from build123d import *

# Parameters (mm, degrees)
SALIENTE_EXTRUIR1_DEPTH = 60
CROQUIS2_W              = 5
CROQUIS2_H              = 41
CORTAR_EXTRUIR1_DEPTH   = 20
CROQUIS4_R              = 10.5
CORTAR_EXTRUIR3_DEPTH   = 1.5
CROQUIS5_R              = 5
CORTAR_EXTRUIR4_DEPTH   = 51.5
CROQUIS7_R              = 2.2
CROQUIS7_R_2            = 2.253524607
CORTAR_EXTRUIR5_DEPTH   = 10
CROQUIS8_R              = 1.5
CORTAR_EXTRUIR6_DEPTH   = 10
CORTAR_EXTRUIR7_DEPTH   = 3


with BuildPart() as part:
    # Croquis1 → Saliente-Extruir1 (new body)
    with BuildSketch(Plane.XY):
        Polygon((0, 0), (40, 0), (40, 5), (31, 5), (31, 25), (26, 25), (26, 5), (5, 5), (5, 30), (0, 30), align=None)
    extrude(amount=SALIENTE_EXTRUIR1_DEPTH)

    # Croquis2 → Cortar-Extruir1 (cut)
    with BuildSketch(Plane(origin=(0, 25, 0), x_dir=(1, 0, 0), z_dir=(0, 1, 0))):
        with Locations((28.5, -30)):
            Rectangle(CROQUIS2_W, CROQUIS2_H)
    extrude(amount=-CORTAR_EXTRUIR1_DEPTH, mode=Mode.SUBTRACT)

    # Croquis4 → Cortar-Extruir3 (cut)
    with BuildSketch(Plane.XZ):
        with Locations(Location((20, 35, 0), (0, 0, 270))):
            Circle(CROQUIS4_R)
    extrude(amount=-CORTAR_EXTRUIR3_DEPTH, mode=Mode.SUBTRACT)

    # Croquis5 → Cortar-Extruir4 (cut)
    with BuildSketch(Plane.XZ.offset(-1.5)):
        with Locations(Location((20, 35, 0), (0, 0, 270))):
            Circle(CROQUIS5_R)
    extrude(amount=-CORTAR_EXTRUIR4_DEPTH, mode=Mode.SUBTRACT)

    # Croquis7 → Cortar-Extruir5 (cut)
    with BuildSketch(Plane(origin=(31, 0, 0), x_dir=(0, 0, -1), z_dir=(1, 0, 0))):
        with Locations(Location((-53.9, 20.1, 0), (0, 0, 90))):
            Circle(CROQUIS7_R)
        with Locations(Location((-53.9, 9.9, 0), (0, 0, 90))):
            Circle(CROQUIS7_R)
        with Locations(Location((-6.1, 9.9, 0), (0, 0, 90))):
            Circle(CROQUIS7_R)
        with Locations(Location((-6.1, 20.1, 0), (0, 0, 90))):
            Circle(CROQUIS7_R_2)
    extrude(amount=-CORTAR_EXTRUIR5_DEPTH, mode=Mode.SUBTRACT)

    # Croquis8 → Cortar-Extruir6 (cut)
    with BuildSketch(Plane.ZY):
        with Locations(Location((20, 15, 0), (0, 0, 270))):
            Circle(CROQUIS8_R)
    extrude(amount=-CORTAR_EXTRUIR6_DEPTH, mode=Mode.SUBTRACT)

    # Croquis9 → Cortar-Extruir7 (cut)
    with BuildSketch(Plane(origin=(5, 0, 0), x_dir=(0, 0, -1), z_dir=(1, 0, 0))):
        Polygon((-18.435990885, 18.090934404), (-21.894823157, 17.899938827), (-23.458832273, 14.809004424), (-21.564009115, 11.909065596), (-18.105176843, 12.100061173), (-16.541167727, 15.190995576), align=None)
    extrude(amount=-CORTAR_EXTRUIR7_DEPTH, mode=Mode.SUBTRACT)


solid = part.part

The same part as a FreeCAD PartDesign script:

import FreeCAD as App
import Part
import Sketcher
from FreeCAD import Vector
Q = App.Units.Quantity

doc = App.newDocument("Part")
params = doc.addObject("Spreadsheet::Sheet", "Params")
for row, (alias, value) in enumerate([
    ("sketch1_width", "40 mm"),
    ("sketch1_width2", "9 mm"),
    ("sketch1_width3", "5 mm"),
    ("sketch1_height", "20 mm"),
    ("sketch1_height2", "25 mm"),
    ("pad1_length", "60 mm"),
    ("sketch2_width", "5 mm"),
    ("sketch2_height", "41 mm"),
    ("pocket1_length", "20 mm"),
    ("sketch3_diameter", "21 mm"),
    ("pocket2_length", "1.5 mm"),
    ("sketch4_diameter", "10 mm"),
    ("pocket3_length", "51.5 mm"),
    ("sketch5_diameter", "4.4 mm"),
    ("pocket4_length", "10 mm"),
    ("sketch6_diameter", "3 mm"),
    ("pocket5_length", "10 mm"),
    ("pocket6_length", "3 mm"),
], start=1):
    params.set(f"A{row}", alias)
    params.set(f"B{row}", "=" + value)
    params.setAlias(f"B{row}", alias)

body = doc.addObject("PartDesign::Body", "Body")

sketch1 = body.newObject("Sketcher::SketchObject", "Sketch")
sketch1.AttachmentSupport = (doc.getObject("XY_Plane"), [""])
sketch1.MapMode = "FlatFace"
sketch1.addGeometry([
    Part.LineSegment(Vector(0, 0, 0), Vector(40, 0, 0)),
    Part.LineSegment(Vector(40, 0, 0), Vector(40, 5, 0)),
    Part.LineSegment(Vector(40, 5, 0), Vector(31, 5, 0)),
    Part.LineSegment(Vector(31, 5, 0), Vector(31, 25, 0)),
    Part.LineSegment(Vector(31, 25, 0), Vector(26, 25, 0)),
    Part.LineSegment(Vector(26, 25, 0), Vector(26, 5, 0)),
    Part.LineSegment(Vector(26, 5, 0), Vector(5, 5, 0)),
    Part.LineSegment(Vector(5, 5, 0), Vector(5, 30, 0)),
    Part.LineSegment(Vector(5, 30, 0), Vector(0, 30, 0)),
    Part.LineSegment(Vector(0, 30, 0), Vector(0, 0, 0)),
], False)
sketch1.addConstraint([
    Sketcher.Constraint("Coincident", 0, 2, 1, 1),
    Sketcher.Constraint("Coincident", 1, 2, 2, 1),
    Sketcher.Constraint("Coincident", 2, 2, 3, 1),
    Sketcher.Constraint("Coincident", 3, 2, 4, 1),
    Sketcher.Constraint("Coincident", 4, 2, 5, 1),
    Sketcher.Constraint("Coincident", 5, 2, 6, 1),
    Sketcher.Constraint("Coincident", 6, 2, 7, 1),
    Sketcher.Constraint("Coincident", 7, 2, 8, 1),
    Sketcher.Constraint("Coincident", 8, 2, 9, 1),
    Sketcher.Constraint("Coincident", 9, 2, 0, 1),
    Sketcher.Constraint("Horizontal", 0),
    Sketcher.Constraint("Vertical", 1),
    Sketcher.Constraint("Horizontal", 2),
    Sketcher.Constraint("Vertical", 3),
    Sketcher.Constraint("Horizontal", 4),
    Sketcher.Constraint("Vertical", 5),
    Sketcher.Constraint("Horizontal", 6),
    Sketcher.Constraint("Vertical", 7),
    Sketcher.Constraint("Horizontal", 8),
    Sketcher.Constraint("Vertical", 9),
    Sketcher.Constraint("Coincident", 9, 2, -1, 1),
    Sketcher.Constraint("Horizontal", 2, 2, 5, 2),
    Sketcher.Constraint("Equal", 4, 8),
    Sketcher.Constraint("Equal", 8, 1),
    Sketcher.Constraint("DistanceX", 0, 1, 0, 2, Q("40 mm")),
    Sketcher.Constraint("DistanceX", 2, 2, 2, 1, Q("9 mm")),
    Sketcher.Constraint("DistanceX", 4, 2, 4, 1, Q("5 mm")),
    Sketcher.Constraint("DistanceY", 3, 1, 3, 2, Q("20 mm")),
    Sketcher.Constraint("DistanceY", 7, 1, 7, 2, Q("25 mm")),
])
sketch1.setExpression("Constraints[24]", "Params.sketch1_width")
sketch1.setExpression("Constraints[25]", "Params.sketch1_width2")
sketch1.setExpression("Constraints[26]", "Params.sketch1_width3")
sketch1.setExpression("Constraints[27]", "Params.sketch1_height")
sketch1.setExpression("Constraints[28]", "Params.sketch1_height2")
pad1 = body.newObject("PartDesign::Pad", "Pad")
pad1.Profile = sketch1
pad1.setExpression("Length", "Params.pad1_length")

sketch2 = body.newObject("Sketcher::SketchObject", "Sketch001")
sketch2.AttachmentSupport = (doc.getObject("XZ_Plane"), [""])
sketch2.MapMode = "FlatFace"
sketch2.AttachmentOffset = App.Placement(Vector(0, 0, -25), App.Rotation())
sketch2.addGeometry([
    Part.LineSegment(Vector(26, 10, 0), Vector(26, 50, 0)),
    Part.LineSegment(Vector(26, 50, 0), Vector(31, 50, 0)),
    Part.LineSegment(Vector(31, 50, 0), Vector(31, 10, 0)),
    Part.LineSegment(Vector(31, 10, 0), Vector(26, 10, 0)),
], False)
sketch2.addConstraint([
    Sketcher.Constraint("Coincident", 0, 2, 1, 1),
    Sketcher.Constraint("Coincident", 1, 2, 2, 1),
    Sketcher.Constraint("Coincident", 2, 2, 3, 1),
    Sketcher.Constraint("Coincident", 3, 2, 0, 1),
    Sketcher.Constraint("Vertical", 0),
    Sketcher.Constraint("Horizontal", 1),
    Sketcher.Constraint("Vertical", 2),
    Sketcher.Constraint("Horizontal", 3),
    Sketcher.Constraint("DistanceX", 1, 1, 1, 2, Q("5 mm")),
    Sketcher.Constraint("DistanceY", 0, 1, 0, 2, Q("41 mm")),
    Sketcher.Constraint("DistanceX", -1, 1, 0, 2, Q("26 mm")),
    Sketcher.Constraint("DistanceY", -1, 1, 0, 2, Q("50.5 mm")),
])
sketch2.setExpression("Constraints[8]", "Params.sketch2_width")
sketch2.setExpression("Constraints[9]", "Params.sketch2_height")
pocket1 = body.newObject("PartDesign::Pocket", "Pocket")
pocket1.Profile = sketch2
pocket1.setExpression("Length", "Params.pocket1_length")
pocket1.Reversed = True

sketch3 = body.newObject("Sketcher::SketchObject", "Sketch002")
sketch3.AttachmentSupport = (doc.getObject("XZ_Plane"), [""])
sketch3.MapMode = "FlatFace"
sketch3.addGeometry(Part.Circle(Vector(20, 35, 0), Vector(0, 0, 1), 10), False)
sketch3.addConstraint([
    Sketcher.Constraint("Diameter", 0, Q("21 mm")),
    Sketcher.Constraint("DistanceX", -1, 1, 0, 3, Q("20 mm")),
    Sketcher.Constraint("DistanceY", -1, 1, 0, 3, Q("35 mm")),
])
sketch3.setExpression("Constraints[0]", "Params.sketch3_diameter")
pocket2 = body.newObject("PartDesign::Pocket", "Pocket001")
pocket2.Profile = sketch3
pocket2.setExpression("Length", "Params.pocket2_length")

sketch4 = body.newObject("Sketcher::SketchObject", "Sketch003")
sketch4.AttachmentSupport = (doc.getObject("XZ_Plane"), [""])
sketch4.MapMode = "FlatFace"
sketch4.AttachmentOffset = App.Placement(Vector(0, 0, -1.5), App.Rotation())
sketch4.addGeometry(Part.Circle(Vector(20, 35, 0), Vector(0, 0, 1), 5), False)
sketch4.addConstraint([
    Sketcher.Constraint("Diameter", 0, Q("10 mm")),
    Sketcher.Constraint("DistanceX", -1, 1, 0, 3, Q("20 mm")),
    Sketcher.Constraint("DistanceY", -1, 1, 0, 3, Q("35 mm")),
])
sketch4.setExpression("Constraints[0]", "Params.sketch4_diameter")
pocket3 = body.newObject("PartDesign::Pocket", "Pocket002")
pocket3.Profile = sketch4
pocket3.setExpression("Length", "Params.pocket3_length")

sketch5 = body.newObject("Sketcher::SketchObject", "Sketch004")
sketch5.AttachmentSupport = (doc.getObject("YZ_Plane"), [""])
sketch5.MapMode = "FlatFace"
sketch5.AttachmentOffset = App.Placement(Vector(0, 0, 31), App.Rotation())
sketch5.addGeometry([
    Part.Circle(Vector(20.1, 53.9, 0), Vector(0, 0, 1), 2.2),
    Part.Circle(Vector(9.9, 53.9, 0), Vector(0, 0, 1), 2.2),
    Part.Circle(Vector(9.9, 6.1, 0), Vector(0, 0, 1), 2.2),
    Part.Circle(Vector(20.1, 6.1, 0), Vector(0, 0, 1), 2.3),
], False)
sketch5.addConstraint([
    Sketcher.Constraint("Equal", 0, 1),
    Sketcher.Constraint("Equal", 1, 2),
    Sketcher.Constraint("Horizontal", 0, 3, 1, 3),
    Sketcher.Constraint("Horizontal", 2, 3, 3, 3),
    Sketcher.Constraint("Vertical", 1, 3, 2, 3),
    Sketcher.Constraint("Vertical", 0, 3, 3, 3),
    Sketcher.Constraint("Diameter", 0, Q("4.4 mm")),
    Sketcher.Constraint("DistanceX", -1, 1, 0, 3, Q("20.1 mm")),
    Sketcher.Constraint("DistanceY", -1, 1, 0, 3, Q("53.9 mm")),
    Sketcher.Constraint("DistanceX", -1, 1, 1, 3, Q("9.9 mm")),
    Sketcher.Constraint("DistanceY", -1, 1, 2, 3, Q("6.1 mm")),
    Sketcher.Constraint("Diameter", 3, Q("4.507049 mm")),
])
sketch5.setExpression("Constraints[6]", "Params.sketch5_diameter")
pocket4 = body.newObject("PartDesign::Pocket", "Pocket003")
pocket4.Profile = sketch5
pocket4.setExpression("Length", "Params.pocket4_length")

sketch6 = body.newObject("Sketcher::SketchObject", "Sketch005")
sketch6.AttachmentSupport = (doc.getObject("YZ_Plane"), [""])
sketch6.MapMode = "FlatFace"
sketch6.addGeometry(Part.Circle(Vector(15, 20, 0), Vector(0, 0, 1), 1.5), False)
sketch6.addConstraint([
    Sketcher.Constraint("Diameter", 0, Q("3 mm")),
    Sketcher.Constraint("DistanceX", -1, 1, 0, 3, Q("15 mm")),
    Sketcher.Constraint("DistanceY", -1, 1, 0, 3, Q("20 mm")),
])
sketch6.setExpression("Constraints[0]", "Params.sketch6_diameter")
pocket5 = body.newObject("PartDesign::Pocket", "Pocket004")
pocket5.Profile = sketch6
pocket5.setExpression("Length", "Params.pocket5_length")
pocket5.Reversed = True

sketch7 = body.newObject("Sketcher::SketchObject", "Sketch006")
sketch7.AttachmentSupport = (doc.getObject("YZ_Plane"), [""])
sketch7.MapMode = "FlatFace"
sketch7.AttachmentOffset = App.Placement(Vector(0, 0, 5), App.Rotation())
sketch7.addGeometry([
    Part.LineSegment(Vector(18.1, 18.4, 0), Vector(17.9, 21.9, 0)),
    Part.LineSegment(Vector(17.9, 21.9, 0), Vector(14.8, 23.5, 0)),
    Part.LineSegment(Vector(14.8, 23.5, 0), Vector(11.9, 21.6, 0)),
    Part.LineSegment(Vector(11.9, 21.6, 0), Vector(12.1, 18.1, 0)),
    Part.LineSegment(Vector(12.1, 18.1, 0), Vector(15.2, 16.5, 0)),
    Part.LineSegment(Vector(15.2, 16.5, 0), Vector(18.1, 18.4, 0)),
], False)
sketch7.addConstraint([
    Sketcher.Constraint("Coincident", 0, 2, 1, 1),
    Sketcher.Constraint("Coincident", 1, 2, 2, 1),
    Sketcher.Constraint("Coincident", 2, 2, 3, 1),
    Sketcher.Constraint("Coincident", 3, 2, 4, 1),
    Sketcher.Constraint("Coincident", 4, 2, 5, 1),
    Sketcher.Constraint("Coincident", 5, 2, 0, 1),
    Sketcher.Constraint("Parallel", 0, 3),
    Sketcher.Constraint("Parallel", 1, 4),
    Sketcher.Constraint("Parallel", 2, 5),
    Sketcher.Constraint("Equal", 0, 1),
    Sketcher.Constraint("Equal", 1, 2),
    Sketcher.Constraint("Equal", 2, 3),
    Sketcher.Constraint("Distance", 0, Q("3.464102 mm")),
    Sketcher.Constraint("DistanceX", -1, 1, 0, 2, Q("17.899939 mm")),
    Sketcher.Constraint("DistanceY", -1, 1, 2, 2, Q("21.564009 mm")),
    Sketcher.Constraint("DistanceX", -1, 1, 3, 2, Q("12.100061 mm")),
    Sketcher.Constraint("DistanceY", -1, 1, 5, 2, Q("18.435991 mm")),
    Sketcher.Constraint("DistanceY", 0, 2, 1, 2, Q("1.564009 mm")),
])
pocket6 = body.newObject("PartDesign::Pocket", "Pocket005")
pocket6.Profile = sketch7
pocket6.setExpression("Length", "Params.pocket6_length")

doc.recompute()
